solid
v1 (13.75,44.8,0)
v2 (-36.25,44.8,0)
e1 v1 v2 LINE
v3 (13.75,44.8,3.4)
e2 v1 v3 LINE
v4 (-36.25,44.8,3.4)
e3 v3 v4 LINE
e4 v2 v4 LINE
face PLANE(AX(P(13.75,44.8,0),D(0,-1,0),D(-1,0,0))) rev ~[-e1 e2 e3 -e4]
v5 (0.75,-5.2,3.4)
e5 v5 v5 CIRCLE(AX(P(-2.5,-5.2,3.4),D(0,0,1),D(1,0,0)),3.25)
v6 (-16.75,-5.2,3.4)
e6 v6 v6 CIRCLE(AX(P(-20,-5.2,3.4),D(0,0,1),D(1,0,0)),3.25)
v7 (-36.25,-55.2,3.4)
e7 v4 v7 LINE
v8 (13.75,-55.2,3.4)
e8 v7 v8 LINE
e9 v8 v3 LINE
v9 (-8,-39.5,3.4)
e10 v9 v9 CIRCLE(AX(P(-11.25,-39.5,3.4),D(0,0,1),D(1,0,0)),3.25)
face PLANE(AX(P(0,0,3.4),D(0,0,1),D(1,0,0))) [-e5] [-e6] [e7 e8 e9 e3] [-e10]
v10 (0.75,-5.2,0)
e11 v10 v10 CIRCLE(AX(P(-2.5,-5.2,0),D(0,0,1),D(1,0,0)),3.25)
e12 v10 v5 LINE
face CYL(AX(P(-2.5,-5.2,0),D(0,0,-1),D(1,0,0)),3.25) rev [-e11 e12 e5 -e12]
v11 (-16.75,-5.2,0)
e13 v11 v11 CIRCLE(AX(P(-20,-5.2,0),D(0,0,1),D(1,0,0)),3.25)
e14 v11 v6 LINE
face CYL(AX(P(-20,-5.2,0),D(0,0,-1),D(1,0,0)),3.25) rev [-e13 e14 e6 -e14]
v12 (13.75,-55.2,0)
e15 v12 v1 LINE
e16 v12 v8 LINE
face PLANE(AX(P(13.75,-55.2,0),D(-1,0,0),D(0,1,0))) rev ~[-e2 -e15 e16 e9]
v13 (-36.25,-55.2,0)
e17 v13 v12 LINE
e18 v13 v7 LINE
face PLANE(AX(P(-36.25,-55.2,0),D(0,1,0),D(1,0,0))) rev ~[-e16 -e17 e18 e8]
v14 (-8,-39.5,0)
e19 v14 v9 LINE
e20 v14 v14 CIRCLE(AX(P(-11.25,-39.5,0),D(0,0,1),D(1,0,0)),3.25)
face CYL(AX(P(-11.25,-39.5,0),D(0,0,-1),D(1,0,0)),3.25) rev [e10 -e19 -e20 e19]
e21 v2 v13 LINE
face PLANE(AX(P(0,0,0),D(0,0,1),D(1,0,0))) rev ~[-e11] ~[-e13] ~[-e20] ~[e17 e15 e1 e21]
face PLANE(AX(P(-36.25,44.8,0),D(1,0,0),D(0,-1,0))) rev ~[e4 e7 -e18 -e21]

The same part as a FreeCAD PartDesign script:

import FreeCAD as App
import Part
import Sketcher
Q = App.Units.Quantity

doc = App.newDocument("Part")
params = doc.addObject("Spreadsheet::Sheet", "Params")
for row, (alias, value) in enumerate([
    ("sketch1_diameter", "6.5 mm"),
    ("sketch1_width", "50 mm"),
    ("sketch1_height", "100 mm"),
    ("pad1_length", "3.4 mm"),
], start=1):
    params.set(f"A{row}", alias)
    params.set(f"B{row}", "=" + value)
    params.setAlias(f"B{row}", alias)

body = doc.addObject("PartDesign::Body", "Body")

sketch1 = doc.addObject("Sketcher::SketchObject", "Sketch")
body.addObject(sketch1)
sketch1.AttachmentSupport = (doc.XY_Plane, [""])
sketch1.MapMode = "FlatFace"
sketch1.addGeometry([
    Part.LineSegment(App.Vector(13.75, -55.2, 0), App.Vector(13.75, 44.8, 0)),
    Part.LineSegment(App.Vector(13.75, 44.8, 0), App.Vector(-36.25, 44.8, 0)),
    Part.LineSegment(App.Vector(-36.25, 44.8, 0), App.Vector(-36.25, -55.2, 0)),
    Part.LineSegment(App.Vector(-36.25, -55.2, 0), App.Vector(13.75, -55.2, 0)),
    Part.Circle(App.Vector(-11.25, -39.5, 0), App.Vector(0, 0, 1), 3.25),
    Part.Circle(App.Vector(-20, -5.2, 0), App.Vector(0, 0, 1), 3.25),
    Part.Circle(App.Vector(-2.5, -5.2, 0), App.Vector(0, 0, 1), 3.25),
], False)
sketch1.addConstraint([
    Sketcher.Constraint("Coincident", 0, 2, 1, 1),
    Sketcher.Constraint("Coincident", 1, 2, 2, 1),
    Sketcher.Constraint("Coincident", 2, 2, 3, 1),
    Sketcher.Constraint("Coincident", 3, 2, 0, 1),
    Sketcher.Constraint("Vertical", 0),
    Sketcher.Constraint("Horizontal", 1),
    Sketcher.Constraint("Vertical", 2),
    Sketcher.Constraint("Horizontal", 3),
    Sketcher.Constraint("Equal", 4, 5),
    Sketcher.Constraint("Equal", 5, 6),
    Sketcher.Constraint("Horizontal", 5, 3, 6, 3),
    Sketcher.Constraint("Diameter", 4, Q("6.5 mm")),
    Sketcher.Constraint("DistanceX", 1, 2, 1, 1, Q("50 mm")),
    Sketcher.Constraint("DistanceY", 0, 1, 0, 2, Q("100 mm")),
    Sketcher.Constraint("DistanceX", 5, 3, -1, 1, Q("20 mm")),
    Sketcher.Constraint("DistanceY", 6, 3, 0, 2, Q("50 mm")),
    Sketcher.Constraint("DistanceX", 4, 3, 0, 2, Q("25 mm")),
    Sketcher.Constraint("DistanceY", 4, 3, -1, 1, Q("39.5 mm")),
    Sketcher.Constraint("DistanceY", 5, 3, -1, 1, Q("5.2 mm")),
    Sketcher.Constraint("DistanceX", 6, 3, -1, 1, Q("2.5 mm")),
    Sketcher.Constraint("DistanceX", 4, 3, -1, 1, Q("11.25 mm")),
])
sketch1.setExpression("Constraints[11]", "Params.sketch1_diameter")
sketch1.setExpression("Constraints[12]", "Params.sketch1_width")
sketch1.setExpression("Constraints[13]", "Params.sketch1_height")
pad1 = doc.addObject("PartDesign::Pad", "Pad")
body.addObject(pad1)
pad1.Profile = sketch1
pad1.setExpression("Length", "Params.pad1_length")

doc.recompute()
